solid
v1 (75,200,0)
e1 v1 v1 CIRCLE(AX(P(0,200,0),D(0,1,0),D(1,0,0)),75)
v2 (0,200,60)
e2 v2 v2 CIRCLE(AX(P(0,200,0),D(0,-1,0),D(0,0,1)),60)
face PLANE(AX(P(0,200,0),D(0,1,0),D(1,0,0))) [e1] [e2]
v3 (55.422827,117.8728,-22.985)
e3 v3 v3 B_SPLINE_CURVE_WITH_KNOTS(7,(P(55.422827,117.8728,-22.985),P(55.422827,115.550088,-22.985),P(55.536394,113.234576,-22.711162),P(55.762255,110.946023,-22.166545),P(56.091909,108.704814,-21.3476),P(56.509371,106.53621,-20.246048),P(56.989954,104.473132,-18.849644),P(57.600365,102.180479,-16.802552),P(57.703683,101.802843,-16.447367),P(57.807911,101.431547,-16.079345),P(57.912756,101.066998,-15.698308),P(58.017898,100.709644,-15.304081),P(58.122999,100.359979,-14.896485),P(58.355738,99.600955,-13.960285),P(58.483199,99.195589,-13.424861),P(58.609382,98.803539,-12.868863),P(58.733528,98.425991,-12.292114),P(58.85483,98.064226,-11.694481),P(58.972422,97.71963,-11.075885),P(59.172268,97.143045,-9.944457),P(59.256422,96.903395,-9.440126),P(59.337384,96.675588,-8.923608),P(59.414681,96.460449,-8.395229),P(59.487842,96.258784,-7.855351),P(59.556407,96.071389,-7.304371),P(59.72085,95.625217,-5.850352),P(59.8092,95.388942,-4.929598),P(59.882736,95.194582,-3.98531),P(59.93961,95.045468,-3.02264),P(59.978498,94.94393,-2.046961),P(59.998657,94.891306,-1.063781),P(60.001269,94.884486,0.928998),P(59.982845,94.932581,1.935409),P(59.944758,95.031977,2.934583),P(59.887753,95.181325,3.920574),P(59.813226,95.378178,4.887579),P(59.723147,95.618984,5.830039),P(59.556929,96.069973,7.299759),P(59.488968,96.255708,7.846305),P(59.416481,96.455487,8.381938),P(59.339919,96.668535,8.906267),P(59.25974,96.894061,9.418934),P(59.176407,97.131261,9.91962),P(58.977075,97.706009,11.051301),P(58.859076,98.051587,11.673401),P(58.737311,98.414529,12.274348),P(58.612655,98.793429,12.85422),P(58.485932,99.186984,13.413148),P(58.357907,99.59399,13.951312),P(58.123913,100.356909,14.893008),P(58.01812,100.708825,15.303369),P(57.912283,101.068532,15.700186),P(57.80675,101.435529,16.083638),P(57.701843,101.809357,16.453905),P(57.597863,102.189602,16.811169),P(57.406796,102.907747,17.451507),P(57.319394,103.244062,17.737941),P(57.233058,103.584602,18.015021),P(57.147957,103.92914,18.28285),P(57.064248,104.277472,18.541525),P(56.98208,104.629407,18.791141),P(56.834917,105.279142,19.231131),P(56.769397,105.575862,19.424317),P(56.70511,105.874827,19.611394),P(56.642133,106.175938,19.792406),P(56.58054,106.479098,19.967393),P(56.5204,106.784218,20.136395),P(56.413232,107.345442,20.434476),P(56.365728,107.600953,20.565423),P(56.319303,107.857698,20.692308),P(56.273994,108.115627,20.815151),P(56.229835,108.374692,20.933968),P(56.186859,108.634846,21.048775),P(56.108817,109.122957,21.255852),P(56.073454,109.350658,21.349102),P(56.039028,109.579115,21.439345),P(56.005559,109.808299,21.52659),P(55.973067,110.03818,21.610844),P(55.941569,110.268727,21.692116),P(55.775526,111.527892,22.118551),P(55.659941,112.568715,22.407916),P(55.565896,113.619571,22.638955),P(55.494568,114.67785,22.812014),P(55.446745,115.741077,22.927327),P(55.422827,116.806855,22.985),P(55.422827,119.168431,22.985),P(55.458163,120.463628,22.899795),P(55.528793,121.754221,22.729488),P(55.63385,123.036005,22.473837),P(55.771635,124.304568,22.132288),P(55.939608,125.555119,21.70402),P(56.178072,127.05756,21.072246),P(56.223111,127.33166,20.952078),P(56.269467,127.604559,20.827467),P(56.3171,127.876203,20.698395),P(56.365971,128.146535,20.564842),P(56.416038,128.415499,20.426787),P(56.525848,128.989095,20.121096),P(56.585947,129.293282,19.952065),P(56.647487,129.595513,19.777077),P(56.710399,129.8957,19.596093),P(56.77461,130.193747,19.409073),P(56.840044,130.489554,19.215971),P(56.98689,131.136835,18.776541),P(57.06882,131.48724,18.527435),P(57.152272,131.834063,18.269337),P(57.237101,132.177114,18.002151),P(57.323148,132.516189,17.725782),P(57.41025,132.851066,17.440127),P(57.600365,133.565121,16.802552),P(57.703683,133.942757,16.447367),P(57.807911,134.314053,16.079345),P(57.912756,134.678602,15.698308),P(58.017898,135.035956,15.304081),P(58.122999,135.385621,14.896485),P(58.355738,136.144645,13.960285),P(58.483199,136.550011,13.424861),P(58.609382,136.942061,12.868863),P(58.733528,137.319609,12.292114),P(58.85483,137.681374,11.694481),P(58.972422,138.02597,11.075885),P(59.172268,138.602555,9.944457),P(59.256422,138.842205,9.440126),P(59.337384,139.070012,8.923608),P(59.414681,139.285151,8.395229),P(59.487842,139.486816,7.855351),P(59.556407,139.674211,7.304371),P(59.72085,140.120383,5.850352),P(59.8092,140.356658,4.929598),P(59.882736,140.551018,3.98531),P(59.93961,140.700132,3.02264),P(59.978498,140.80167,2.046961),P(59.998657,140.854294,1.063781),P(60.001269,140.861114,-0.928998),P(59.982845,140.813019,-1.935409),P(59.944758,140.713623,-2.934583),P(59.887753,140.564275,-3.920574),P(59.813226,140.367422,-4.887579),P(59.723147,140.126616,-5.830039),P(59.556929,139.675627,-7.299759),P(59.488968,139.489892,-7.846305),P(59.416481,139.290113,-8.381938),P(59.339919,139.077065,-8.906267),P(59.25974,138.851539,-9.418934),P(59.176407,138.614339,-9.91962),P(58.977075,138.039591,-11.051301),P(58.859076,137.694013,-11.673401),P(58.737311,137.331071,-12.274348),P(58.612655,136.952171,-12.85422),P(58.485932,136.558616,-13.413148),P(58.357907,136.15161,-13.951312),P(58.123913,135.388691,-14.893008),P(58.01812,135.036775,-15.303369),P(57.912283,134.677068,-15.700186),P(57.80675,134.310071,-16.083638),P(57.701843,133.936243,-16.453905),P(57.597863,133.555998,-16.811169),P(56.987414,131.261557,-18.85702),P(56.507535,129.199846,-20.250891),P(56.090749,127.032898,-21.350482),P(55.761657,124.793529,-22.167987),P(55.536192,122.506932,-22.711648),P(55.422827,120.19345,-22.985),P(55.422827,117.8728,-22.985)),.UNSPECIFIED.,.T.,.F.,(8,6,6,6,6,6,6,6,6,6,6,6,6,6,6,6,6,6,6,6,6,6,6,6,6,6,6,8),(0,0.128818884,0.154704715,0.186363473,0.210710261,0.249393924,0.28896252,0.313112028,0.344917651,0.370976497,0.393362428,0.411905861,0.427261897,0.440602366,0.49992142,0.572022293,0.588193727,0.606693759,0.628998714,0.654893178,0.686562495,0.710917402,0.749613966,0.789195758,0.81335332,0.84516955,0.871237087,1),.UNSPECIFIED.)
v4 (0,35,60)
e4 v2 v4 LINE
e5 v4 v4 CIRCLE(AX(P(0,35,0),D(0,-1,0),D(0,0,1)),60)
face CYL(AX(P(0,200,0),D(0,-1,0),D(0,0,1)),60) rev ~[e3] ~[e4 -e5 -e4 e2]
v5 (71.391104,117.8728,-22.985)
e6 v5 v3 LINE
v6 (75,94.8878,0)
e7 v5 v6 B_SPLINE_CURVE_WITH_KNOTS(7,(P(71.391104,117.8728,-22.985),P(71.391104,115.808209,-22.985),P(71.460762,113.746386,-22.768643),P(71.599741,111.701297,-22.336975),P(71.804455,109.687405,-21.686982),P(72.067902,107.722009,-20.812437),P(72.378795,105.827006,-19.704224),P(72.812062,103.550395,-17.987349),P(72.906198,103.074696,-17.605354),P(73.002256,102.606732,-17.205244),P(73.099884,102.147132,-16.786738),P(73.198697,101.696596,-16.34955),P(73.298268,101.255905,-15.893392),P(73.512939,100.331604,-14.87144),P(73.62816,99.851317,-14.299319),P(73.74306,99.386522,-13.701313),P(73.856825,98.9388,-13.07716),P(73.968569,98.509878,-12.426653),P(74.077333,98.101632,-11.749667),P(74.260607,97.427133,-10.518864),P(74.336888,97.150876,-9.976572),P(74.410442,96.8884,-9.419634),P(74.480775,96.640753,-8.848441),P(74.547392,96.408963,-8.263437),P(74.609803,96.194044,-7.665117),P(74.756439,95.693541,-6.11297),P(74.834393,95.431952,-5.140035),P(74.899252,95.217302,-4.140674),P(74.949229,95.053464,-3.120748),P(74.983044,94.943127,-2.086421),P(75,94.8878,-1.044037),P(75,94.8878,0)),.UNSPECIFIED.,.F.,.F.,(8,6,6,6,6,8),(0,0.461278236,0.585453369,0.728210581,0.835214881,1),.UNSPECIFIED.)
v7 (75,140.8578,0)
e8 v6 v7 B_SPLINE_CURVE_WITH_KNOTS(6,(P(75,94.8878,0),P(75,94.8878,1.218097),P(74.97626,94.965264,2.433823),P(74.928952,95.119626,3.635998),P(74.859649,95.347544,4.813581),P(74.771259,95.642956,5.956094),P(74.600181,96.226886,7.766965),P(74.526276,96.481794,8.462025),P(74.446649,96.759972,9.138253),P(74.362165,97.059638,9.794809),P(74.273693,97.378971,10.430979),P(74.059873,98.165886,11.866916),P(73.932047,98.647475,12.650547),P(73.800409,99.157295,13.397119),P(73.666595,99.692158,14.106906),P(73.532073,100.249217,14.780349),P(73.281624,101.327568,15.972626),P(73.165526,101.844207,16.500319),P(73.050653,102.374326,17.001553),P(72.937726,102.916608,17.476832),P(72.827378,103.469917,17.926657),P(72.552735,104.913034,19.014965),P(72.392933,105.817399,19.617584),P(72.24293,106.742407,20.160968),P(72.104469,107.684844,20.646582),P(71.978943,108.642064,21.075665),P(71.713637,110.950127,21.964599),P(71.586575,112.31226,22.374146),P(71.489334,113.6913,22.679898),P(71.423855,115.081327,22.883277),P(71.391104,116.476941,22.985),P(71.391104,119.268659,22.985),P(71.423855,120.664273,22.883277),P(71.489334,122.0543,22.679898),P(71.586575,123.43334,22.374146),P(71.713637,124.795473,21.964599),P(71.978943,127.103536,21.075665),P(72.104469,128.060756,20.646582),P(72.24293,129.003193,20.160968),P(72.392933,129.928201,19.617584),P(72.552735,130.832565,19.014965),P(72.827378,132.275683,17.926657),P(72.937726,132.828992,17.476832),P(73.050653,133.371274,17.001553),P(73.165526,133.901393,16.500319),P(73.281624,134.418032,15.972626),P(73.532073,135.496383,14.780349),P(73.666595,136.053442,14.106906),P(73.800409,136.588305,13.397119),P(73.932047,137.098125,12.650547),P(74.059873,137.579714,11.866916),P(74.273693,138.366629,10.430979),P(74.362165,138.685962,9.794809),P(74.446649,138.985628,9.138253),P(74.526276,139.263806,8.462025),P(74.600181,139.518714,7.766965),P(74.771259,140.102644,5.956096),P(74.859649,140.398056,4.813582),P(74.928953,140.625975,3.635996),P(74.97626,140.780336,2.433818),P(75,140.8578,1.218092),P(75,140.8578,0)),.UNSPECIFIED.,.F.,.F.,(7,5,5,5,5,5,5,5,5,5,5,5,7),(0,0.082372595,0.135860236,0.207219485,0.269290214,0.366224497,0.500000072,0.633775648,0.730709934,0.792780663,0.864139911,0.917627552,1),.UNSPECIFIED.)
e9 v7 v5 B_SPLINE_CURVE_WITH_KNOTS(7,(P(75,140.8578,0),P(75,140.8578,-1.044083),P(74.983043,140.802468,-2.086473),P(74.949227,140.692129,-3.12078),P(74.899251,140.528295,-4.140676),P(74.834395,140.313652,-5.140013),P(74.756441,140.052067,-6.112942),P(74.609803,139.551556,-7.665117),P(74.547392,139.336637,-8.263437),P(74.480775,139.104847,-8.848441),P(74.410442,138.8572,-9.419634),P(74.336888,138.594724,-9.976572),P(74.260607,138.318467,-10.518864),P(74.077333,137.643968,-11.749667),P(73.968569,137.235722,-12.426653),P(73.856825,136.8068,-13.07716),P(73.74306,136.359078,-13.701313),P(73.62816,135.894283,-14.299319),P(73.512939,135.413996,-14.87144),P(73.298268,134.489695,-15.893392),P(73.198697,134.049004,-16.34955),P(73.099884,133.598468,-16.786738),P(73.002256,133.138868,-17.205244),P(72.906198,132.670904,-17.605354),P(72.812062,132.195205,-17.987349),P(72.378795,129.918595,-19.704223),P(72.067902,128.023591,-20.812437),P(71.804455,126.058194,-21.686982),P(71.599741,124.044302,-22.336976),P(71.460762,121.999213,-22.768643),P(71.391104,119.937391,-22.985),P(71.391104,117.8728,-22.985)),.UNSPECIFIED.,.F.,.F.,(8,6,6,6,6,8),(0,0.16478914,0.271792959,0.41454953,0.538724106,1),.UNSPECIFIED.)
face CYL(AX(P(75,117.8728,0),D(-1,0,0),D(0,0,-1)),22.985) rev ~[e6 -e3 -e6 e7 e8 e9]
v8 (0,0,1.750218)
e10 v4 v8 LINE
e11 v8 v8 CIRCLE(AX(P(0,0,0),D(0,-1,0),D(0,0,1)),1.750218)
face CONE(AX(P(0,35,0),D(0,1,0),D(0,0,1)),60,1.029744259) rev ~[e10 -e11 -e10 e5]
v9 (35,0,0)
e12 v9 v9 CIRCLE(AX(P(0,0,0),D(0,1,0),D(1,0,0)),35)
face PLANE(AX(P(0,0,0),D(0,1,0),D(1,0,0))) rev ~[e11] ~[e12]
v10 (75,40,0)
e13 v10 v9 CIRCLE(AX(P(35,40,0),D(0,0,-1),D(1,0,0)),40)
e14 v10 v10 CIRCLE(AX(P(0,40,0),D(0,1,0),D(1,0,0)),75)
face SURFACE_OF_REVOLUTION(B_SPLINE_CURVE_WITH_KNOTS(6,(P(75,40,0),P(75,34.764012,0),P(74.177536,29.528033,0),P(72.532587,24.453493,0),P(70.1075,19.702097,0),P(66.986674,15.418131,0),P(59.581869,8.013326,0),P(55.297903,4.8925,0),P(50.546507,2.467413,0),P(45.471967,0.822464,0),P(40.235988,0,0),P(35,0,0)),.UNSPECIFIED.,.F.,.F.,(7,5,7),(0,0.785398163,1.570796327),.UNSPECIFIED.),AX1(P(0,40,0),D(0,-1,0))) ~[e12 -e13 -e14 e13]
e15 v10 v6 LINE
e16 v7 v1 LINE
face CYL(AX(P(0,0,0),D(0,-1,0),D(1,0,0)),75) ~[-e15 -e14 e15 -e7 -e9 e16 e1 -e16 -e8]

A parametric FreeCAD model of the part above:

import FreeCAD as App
import Part
import Sketcher
from FreeCAD import Vector
Q = App.Units.Quantity


def edges_at(feature, points):
    """Names of the edges that pass closest to the given points."""
    edges = feature.Shape.Edges
    near = lambda p: min(range(len(edges)), key=lambda i: edges[i].distToShape(Part.Vertex(*p))[0])
    return sorted({f"Edge{near(p) + 1}" for p in points})

doc = App.newDocument("Part")
params = doc.addObject("Spreadsheet::Sheet", "Params")
for row, (alias, value) in enumerate([
    ("sketch1_diameter", "150 mm"),
    ("pad1_length", "200 mm"),
    ("fillet_radius", "40 mm"),
    ("sketch2_diameter", "120 mm"),
    ("hole_diameter", "120 mm"),
    ("hole_depth", "165 mm"),
    ("sketch3_diameter", "45.97 mm"),
    ("hole2_diameter", "45.97 mm"),
    ("hole2_depth", "50 mm"),
], start=1):
    params.set(f"A{row}", alias)
    params.set(f"B{row}", "=" + value)
    params.setAlias(f"B{row}", alias)

body = doc.addObject("PartDesign::Body", "Body")

sketch1 = body.newObject("Sketcher::SketchObject", "Sketch")
sketch1.AttachmentSupport = (doc.getObject("XZ_Plane"), [""])
sketch1.MapMode = "FlatFace"
sketch1.addGeometry(Part.Circle(Vector(0, 0, 0), Vector(0, 0, 1), 75), False)
sketch1.addConstraint(Sketcher.Constraint("Coincident", 0, 3, -1, 1))
sketch1.addConstraint(Sketcher.Constraint("Diameter", 0, Q("150 mm")))
sketch1.setExpression("Constraints[1]", "Params.sketch1_diameter")
pad1 = body.newObject("PartDesign::Pad", "Pad")
pad1.Profile = sketch1
pad1.setExpression("Length", "Params.pad1_length")
pad1.Reversed = True
doc.recompute()

fillet = body.newObject("PartDesign::Fillet", "Fillet")
fillet.Base = (pad1, edges_at(pad1, [(-69.925, 0, 27.121)]))
fillet.setExpression("Radius", "Params.fillet_radius")

sketch2 = body.newObject("Sketcher::SketchObject", "Sketch001")
sketch2.AttachmentSupport = (doc.getObject("XZ_Plane"), [""])
sketch2.MapMode = "FlatFace"
sketch2.AttachmentOffset = App.Placement(Vector(0, 0, -200), App.Rotation())
sketch2.addGeometry(Part.Circle(Vector(0, 0, 0), Vector(0, 0, 1), 60), False)
sketch2.addConstraint(Sketcher.Constraint("Coincident", 0, 3, -1, 1))
sketch2.addConstraint(Sketcher.Constraint("Diameter", 0, Q("120 mm")))
sketch2.setExpression("Constraints[1]", "Params.sketch2_diameter")
doc.recompute()
hole = body.newObject("PartDesign::Hole", "Hole")
hole.Profile = sketch2
hole.ThreadType = "None"
hole.setExpression("Diameter", "Params.hole_diameter")
hole.DepthType = "Dimension"
hole.setExpression("Depth", "Params.hole_depth")
hole.DrillPoint = "Angled"
hole.DrillPointAngle = 118
hole.Reversed = True

sketch3 = body.newObject("Sketcher::SketchObject", "Sketch002")
sketch3.AttachmentSupport = (doc.getObject("YZ_Plane"), [""])
sketch3.MapMode = "FlatFace"
sketch3.AttachmentOffset = App.Placement(Vector(0, 0, 75), App.Rotation())
sketch3.addGeometry(Part.Circle(Vector(118, 0, 0), Vector(0, 0, 1), 23), False)
sketch3.addConstraint(Sketcher.Constraint("PointOnObject", 0, 3, -1))
sketch3.addConstraint(Sketcher.Constraint("Diameter", 0, Q("45.97 mm")))
sketch3.addConstraint(Sketcher.Constraint("DistanceX", -1, 1, 0, 3, Q("117.8728 mm")))
sketch3.setExpression("Constraints[1]", "Params.sketch3_diameter")
doc.recompute()
hole2 = body.newObject("PartDesign::Hole", "Hole001")
hole2.Profile = sketch3
hole2.ThreadType = "None"
hole2.setExpression("Diameter", "Params.hole2_diameter")
hole2.DepthType = "Dimension"
hole2.setExpression("Depth", "Params.hole2_depth")
hole2.DrillPoint = "Angled"
hole2.DrillPointAngle = 118

doc.recompute()
